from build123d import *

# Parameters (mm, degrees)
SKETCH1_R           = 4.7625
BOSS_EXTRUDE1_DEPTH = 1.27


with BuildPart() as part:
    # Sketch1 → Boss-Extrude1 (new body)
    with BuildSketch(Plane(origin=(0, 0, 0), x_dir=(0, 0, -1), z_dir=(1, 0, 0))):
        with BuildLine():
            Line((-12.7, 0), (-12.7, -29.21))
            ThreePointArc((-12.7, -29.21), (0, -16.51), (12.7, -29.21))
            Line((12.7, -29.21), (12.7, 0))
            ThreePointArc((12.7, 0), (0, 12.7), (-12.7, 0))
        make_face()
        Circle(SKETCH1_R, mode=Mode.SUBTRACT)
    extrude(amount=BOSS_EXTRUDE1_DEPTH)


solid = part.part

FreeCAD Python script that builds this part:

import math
import FreeCAD as App
import Part
import Sketcher
from FreeCAD import Vector
Q = App.Units.Quantity

doc = App.newDocument("Part")
body = doc.addObject("PartDesign::Body", "Body")

# Sketch on YZ plane
sketch1 = body.newObject("Sketcher::SketchObject", "Sketch")
sketch1.AttachmentSupport = (doc.getObject("YZ_Plane"), [""])
sketch1.MapMode = "FlatFace"
sketch1.addGeometry([
    Part.LineSegment(Vector(0, 12.7, 0), Vector(-29.21, 12.7, 0)),  # 0
    Part.ArcOfCircle(Part.Circle(Vector(-29.21, 0, 0), Vector(0, 0, 1), 12.7), math.radians(-90), math.radians(90)),  # 1
    Part.LineSegment(Vector(-29.21, -12.7, 0), Vector(0, -12.7, 0)),  # 2
    Part.ArcOfCircle(Part.Circle(Vector(0, 0, 0), Vector(0, 0, 1), 12.7), math.radians(-90), math.radians(90)),  # 3
    Part.Circle(Vector(0, 0, 0), Vector(0, 0, 1), 4.7625),  # 4
], False)
sketch1.addConstraint([
    Sketcher.Constraint("Tangent", 0, 2, 1, 2),
    Sketcher.Constraint("Tangent", 1, 1, 2, 1),
    Sketcher.Constraint("Tangent", 2, 2, 3, 1),
    Sketcher.Constraint("Tangent", 3, 2, 0, 1),
    Sketcher.Constraint("Horizontal", 0),
    Sketcher.Constraint("Horizontal", 2),
    Sketcher.Constraint("Coincident", 3, 3, -1, 1),
    Sketcher.Constraint("Coincident", 4, 3, -1, 1),
    Sketcher.Constraint("Radius", 1, Q("0.5 in")),
    Sketcher.Constraint("Diameter", 4, Q("0.375 in")),
    Sketcher.Constraint("DistanceX", 0, 2, 0, 1, Q("1.15 in")),
])
pad1 = body.newObject("PartDesign::Pad", "Pad")
pad1.Profile = sketch1
pad1.Length = Q("0.05 in")

doc.recompute()
